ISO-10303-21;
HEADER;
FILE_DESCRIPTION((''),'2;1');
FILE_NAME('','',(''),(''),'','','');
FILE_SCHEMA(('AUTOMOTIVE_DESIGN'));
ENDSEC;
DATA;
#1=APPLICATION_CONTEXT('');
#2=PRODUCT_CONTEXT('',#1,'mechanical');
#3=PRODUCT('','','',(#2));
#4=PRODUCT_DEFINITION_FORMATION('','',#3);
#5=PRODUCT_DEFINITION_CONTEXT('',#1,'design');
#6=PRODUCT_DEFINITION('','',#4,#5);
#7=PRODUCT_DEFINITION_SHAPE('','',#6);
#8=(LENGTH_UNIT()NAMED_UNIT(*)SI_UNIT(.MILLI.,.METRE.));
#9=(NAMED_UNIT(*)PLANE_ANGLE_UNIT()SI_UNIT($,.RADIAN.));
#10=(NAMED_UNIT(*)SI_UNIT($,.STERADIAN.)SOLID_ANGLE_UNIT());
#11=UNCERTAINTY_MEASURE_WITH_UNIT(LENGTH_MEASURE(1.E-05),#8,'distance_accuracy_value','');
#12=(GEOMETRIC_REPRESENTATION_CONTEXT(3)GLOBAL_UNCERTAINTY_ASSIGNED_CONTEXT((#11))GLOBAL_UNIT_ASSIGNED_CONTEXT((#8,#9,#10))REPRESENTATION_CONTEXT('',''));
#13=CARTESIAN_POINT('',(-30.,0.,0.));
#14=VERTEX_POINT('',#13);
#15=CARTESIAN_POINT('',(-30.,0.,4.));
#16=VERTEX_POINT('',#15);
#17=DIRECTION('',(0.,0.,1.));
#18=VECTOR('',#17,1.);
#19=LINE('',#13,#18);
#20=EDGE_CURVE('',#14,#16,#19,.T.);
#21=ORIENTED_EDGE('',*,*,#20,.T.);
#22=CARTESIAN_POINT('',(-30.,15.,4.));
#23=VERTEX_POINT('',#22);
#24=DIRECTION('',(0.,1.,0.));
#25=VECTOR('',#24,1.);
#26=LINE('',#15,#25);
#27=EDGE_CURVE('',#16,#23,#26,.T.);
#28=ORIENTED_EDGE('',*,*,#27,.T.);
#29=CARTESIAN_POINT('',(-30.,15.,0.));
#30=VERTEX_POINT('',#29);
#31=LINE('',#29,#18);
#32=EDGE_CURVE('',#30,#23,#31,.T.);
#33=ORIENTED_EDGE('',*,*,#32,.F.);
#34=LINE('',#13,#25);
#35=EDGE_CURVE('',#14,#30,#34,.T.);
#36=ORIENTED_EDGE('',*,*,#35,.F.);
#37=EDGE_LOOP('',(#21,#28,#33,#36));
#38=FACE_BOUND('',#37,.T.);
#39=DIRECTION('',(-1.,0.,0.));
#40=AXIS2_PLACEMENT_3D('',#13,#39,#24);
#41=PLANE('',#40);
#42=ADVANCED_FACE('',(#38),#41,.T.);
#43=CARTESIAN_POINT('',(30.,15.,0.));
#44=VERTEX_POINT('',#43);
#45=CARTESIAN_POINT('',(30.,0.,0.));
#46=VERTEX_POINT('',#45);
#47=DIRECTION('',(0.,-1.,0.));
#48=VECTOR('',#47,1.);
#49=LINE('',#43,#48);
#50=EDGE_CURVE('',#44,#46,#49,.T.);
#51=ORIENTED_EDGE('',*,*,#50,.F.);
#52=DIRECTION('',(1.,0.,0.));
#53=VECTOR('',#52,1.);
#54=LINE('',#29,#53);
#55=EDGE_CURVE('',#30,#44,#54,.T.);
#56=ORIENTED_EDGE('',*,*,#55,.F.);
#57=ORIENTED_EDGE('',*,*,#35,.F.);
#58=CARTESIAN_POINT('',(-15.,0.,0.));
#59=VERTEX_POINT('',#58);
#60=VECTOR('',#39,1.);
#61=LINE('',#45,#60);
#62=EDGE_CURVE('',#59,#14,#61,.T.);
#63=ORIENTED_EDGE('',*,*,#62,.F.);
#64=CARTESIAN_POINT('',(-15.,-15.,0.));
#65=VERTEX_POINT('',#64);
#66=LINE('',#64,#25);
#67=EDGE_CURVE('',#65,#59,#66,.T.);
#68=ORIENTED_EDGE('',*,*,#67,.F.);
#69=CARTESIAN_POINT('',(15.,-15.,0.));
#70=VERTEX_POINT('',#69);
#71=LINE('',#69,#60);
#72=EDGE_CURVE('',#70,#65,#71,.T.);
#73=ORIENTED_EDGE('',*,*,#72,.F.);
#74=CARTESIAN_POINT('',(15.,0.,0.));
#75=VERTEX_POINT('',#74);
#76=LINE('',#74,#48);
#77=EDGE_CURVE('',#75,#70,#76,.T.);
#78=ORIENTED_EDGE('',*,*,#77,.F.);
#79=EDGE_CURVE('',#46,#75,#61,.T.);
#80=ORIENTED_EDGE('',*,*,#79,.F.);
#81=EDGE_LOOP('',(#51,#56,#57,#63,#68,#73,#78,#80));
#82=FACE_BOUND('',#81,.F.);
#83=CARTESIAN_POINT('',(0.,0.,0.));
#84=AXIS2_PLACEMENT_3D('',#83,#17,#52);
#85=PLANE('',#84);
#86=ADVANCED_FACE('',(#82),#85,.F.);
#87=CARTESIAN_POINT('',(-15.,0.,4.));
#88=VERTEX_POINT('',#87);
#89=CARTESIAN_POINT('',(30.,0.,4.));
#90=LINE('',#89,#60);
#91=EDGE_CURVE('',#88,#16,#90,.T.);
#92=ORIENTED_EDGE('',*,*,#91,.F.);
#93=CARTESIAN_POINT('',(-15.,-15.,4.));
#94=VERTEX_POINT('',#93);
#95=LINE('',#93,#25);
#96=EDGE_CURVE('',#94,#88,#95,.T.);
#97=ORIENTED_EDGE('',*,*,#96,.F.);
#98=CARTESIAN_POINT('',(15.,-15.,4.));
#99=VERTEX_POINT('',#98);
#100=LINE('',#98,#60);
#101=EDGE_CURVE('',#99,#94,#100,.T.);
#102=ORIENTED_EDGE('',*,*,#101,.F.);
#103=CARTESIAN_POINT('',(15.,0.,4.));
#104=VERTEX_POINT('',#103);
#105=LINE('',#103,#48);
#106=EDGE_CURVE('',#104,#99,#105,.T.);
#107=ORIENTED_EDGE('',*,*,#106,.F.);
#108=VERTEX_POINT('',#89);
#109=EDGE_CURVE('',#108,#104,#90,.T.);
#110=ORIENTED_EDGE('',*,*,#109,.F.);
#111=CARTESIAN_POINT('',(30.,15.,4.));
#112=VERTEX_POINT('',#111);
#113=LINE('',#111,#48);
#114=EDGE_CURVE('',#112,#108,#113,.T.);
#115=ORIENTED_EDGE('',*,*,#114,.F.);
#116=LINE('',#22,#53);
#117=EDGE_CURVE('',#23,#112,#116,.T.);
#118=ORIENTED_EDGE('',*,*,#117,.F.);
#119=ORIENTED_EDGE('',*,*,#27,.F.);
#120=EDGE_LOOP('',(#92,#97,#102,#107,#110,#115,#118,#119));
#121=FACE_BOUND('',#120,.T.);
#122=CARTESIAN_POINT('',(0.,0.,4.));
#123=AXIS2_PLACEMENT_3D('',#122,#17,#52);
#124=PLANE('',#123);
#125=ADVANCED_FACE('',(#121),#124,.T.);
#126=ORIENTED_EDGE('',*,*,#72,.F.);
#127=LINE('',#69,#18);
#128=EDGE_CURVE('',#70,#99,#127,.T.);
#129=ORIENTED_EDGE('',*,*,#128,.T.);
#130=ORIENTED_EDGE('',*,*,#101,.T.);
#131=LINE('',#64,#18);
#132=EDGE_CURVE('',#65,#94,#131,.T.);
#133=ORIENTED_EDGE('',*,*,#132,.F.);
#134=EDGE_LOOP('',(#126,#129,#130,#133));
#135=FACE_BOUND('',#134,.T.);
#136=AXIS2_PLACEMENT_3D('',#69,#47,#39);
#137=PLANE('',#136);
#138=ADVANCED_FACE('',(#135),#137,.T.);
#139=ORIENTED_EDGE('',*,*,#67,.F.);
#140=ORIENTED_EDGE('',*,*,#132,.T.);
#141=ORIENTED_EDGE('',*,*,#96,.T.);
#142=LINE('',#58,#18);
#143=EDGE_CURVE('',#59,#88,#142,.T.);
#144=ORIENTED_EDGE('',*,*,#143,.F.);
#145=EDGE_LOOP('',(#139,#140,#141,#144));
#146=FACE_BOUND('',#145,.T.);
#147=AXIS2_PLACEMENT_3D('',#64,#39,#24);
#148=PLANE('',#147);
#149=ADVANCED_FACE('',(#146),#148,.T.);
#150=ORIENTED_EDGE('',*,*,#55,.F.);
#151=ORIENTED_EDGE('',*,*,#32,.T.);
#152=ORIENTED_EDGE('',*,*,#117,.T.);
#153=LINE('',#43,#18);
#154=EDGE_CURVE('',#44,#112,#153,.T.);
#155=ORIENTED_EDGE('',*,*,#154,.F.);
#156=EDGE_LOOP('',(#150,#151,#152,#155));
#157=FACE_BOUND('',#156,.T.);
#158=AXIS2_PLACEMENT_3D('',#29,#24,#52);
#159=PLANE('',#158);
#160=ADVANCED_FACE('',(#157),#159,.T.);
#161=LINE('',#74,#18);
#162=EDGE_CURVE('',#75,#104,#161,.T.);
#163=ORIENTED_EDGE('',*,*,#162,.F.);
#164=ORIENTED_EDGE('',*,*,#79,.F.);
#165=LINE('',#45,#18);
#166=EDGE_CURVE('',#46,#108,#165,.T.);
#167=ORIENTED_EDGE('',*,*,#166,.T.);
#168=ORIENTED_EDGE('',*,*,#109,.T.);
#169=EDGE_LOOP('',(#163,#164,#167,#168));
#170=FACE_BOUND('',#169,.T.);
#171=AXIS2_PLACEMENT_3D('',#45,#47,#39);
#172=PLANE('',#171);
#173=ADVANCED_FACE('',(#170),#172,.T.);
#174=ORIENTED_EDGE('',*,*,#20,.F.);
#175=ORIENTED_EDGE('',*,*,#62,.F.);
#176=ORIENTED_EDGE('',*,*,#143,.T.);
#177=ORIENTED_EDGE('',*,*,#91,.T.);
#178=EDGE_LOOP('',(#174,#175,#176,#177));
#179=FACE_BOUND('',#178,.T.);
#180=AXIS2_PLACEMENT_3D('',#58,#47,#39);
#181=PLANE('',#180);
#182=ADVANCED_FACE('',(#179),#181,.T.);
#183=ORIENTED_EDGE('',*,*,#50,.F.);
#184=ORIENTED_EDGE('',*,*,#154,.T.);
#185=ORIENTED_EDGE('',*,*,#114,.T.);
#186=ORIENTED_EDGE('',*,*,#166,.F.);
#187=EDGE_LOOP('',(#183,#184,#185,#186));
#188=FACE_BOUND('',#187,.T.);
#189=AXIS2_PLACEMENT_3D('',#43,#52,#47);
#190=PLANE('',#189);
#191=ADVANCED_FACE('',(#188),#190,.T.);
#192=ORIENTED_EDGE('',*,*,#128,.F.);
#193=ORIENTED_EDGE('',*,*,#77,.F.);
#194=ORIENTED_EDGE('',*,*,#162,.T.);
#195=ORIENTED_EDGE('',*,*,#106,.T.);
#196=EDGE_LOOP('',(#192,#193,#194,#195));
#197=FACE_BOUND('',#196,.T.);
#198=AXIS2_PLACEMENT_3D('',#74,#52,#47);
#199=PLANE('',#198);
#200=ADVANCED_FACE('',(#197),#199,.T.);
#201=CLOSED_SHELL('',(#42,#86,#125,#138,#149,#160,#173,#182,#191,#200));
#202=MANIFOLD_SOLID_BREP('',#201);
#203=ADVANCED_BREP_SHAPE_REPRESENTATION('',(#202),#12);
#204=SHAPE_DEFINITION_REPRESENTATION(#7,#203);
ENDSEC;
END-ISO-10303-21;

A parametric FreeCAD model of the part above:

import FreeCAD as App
import Part
import Sketcher

V = App.Vector
Q = App.Units.Quantity


def add_polygon(sketch, points):
    """Adds a closed chain of lines whose ends are joined by coincident constraints."""
    first, n = sketch.GeometryCount, len(points)
    for a, b in zip(points, points[1:] + points[:1]):
        sketch.addGeometry(Part.LineSegment(App.Vector(*a, 0), App.Vector(*b, 0)), False)
    for i in range(n):
        sketch.addConstraint(Sketcher.Constraint("Coincident", first + i, 2, first + (i + 1) % n, 1))

doc = App.newDocument("Part")
body = doc.addObject("PartDesign::Body", "Body")

# Sketch on XY plane
sketch1 = body.newObject("Sketcher::SketchObject", "Sketch")
sketch1.AttachmentSupport = (doc.getObject("XY_Plane"), [""])
sketch1.MapMode = "FlatFace"
add_polygon(sketch1, [(30, 15), (-30, 15), (-30, 0), (-15, 0), (-15, -15), (15, -15), (15, 0), (30, 0)])  # lines 0-7
sketch1.addConstraint(Sketcher.Constraint("Horizontal", 0))
sketch1.addConstraint(Sketcher.Constraint("Vertical", 1))
sketch1.addConstraint(Sketcher.Constraint("Horizontal", 2))
sketch1.addConstraint(Sketcher.Constraint("Vertical", 3))
sketch1.addConstraint(Sketcher.Constraint("Horizontal", 4))
sketch1.addConstraint(Sketcher.Constraint("Vertical", 5))
sketch1.addConstraint(Sketcher.Constraint("Horizontal", 6))
sketch1.addConstraint(Sketcher.Constraint("Vertical", 7))
sketch1.addConstraint(Sketcher.Constraint("Symmetric", 2, 2, 5, 2, -1, 1))
sketch1.addConstraint(Sketcher.Constraint("Symmetric", 1, 2, 6, 2, -2))
sketch1.addConstraint(Sketcher.Constraint("Equal", 6, 1))
sketch1.addConstraint(Sketcher.Constraint("Equal", 1, 3))
sketch1.addConstraint(Sketcher.Constraint("DistanceX", 0, 2, 0, 1, Q("60 mm")))
sketch1.addConstraint(Sketcher.Constraint("DistanceX", 2, 1, 2, 2, Q("15 mm")))
pad1 = body.newObject("PartDesign::Pad", "Pad")
pad1.Profile = sketch1
pad1.Length = 4

doc.recompute()
